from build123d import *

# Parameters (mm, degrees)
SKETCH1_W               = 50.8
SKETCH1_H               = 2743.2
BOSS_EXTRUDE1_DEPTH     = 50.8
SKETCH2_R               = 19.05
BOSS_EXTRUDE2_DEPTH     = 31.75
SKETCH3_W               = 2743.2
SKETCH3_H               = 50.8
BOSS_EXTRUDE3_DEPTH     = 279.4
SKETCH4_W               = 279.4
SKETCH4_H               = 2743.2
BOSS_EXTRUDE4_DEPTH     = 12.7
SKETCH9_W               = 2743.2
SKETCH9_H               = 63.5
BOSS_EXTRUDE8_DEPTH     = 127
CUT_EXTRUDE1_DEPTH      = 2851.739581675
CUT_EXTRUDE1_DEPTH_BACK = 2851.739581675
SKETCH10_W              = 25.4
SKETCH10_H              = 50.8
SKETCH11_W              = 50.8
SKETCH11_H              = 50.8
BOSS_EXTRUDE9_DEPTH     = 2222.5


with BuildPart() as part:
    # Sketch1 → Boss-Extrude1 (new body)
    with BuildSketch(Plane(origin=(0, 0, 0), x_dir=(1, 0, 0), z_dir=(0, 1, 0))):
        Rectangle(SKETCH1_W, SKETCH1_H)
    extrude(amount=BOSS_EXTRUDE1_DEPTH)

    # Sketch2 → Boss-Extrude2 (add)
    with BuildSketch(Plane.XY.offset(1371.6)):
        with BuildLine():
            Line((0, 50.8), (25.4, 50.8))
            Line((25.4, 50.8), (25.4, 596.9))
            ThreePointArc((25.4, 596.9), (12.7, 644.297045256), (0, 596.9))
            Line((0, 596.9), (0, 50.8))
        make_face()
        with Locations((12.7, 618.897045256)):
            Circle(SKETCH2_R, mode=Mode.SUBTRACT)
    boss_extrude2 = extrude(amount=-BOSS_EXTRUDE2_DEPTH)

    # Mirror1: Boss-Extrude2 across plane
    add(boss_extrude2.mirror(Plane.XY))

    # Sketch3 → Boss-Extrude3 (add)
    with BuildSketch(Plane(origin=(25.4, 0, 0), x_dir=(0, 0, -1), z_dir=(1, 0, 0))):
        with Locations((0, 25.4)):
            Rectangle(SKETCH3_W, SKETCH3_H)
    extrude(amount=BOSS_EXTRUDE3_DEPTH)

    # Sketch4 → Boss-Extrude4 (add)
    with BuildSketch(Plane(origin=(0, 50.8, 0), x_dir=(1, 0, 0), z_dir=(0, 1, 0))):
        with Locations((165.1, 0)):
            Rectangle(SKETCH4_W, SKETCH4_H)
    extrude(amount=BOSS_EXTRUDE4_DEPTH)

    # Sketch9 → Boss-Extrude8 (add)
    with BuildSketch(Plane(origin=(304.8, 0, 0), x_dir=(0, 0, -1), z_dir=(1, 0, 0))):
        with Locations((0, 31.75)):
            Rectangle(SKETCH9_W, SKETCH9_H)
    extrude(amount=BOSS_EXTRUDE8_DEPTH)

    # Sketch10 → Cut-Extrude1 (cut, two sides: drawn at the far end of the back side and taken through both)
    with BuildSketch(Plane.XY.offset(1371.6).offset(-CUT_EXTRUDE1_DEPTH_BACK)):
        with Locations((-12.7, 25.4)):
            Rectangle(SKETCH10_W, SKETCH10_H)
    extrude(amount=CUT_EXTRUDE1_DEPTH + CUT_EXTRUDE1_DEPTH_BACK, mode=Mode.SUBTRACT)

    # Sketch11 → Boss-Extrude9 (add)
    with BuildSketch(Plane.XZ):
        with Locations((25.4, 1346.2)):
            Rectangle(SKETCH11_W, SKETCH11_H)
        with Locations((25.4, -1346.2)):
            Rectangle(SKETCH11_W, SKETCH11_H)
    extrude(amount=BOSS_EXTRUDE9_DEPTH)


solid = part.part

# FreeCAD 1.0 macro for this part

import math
import FreeCAD as App
import Part
import Sketcher
from FreeCAD import Vector
Q = App.Units.Quantity

doc = App.newDocument("Part")
body = doc.addObject("PartDesign::Body", "Body")

# Sketch on XZ plane
sketch1 = body.newObject("Sketcher::SketchObject", "Sketch")
sketch1.AttachmentSupport = (doc.getObject("XZ_Plane"), [""])
sketch1.MapMode = "FlatFace"
sketch1.addGeometry([
    Part.LineSegment(Vector(-25, -1372, 0), Vector(-25, 1372, 0)),
    Part.LineSegment(Vector(-25, 1372, 0), Vector(25, 1372, 0)),
    Part.LineSegment(Vector(25, 1372, 0), Vector(25, -1372, 0)),
    Part.LineSegment(Vector(25, -1372, 0), Vector(-25, -1372, 0)),
], False)
sketch1.addConstraint([
    Sketcher.Constraint("Coincident", 0, 2, 1, 1),
    Sketcher.Constraint("Coincident", 1, 2, 2, 1),
    Sketcher.Constraint("Coincident", 2, 2, 3, 1),
    Sketcher.Constraint("Coincident", 3, 2, 0, 1),
    Sketcher.Constraint("Vertical", 0),
    Sketcher.Constraint("Horizontal", 1),
    Sketcher.Constraint("Vertical", 2),
    Sketcher.Constraint("Horizontal", 3),
    Sketcher.Constraint("Symmetric", 0, 2, 2, 2, -1, 1),
    Sketcher.Constraint("DistanceX", 1, 1, 1, 2, Q("2 in")),
    Sketcher.Constraint("DistanceY", 0, 1, 0, 2, Q("108 in")),
])
pad1 = body.newObject("PartDesign::Pad", "Pad")
pad1.Profile = sketch1
pad1.Length = Q("2 in")
pad1.Reversed = True

# Sketch on XY plane
sketch2 = body.newObject("Sketcher::SketchObject", "Sketch001")
sketch2.AttachmentSupport = (doc.getObject("XY_Plane"), [""])
sketch2.MapMode = "FlatFace"
sketch2.AttachmentOffset = App.Placement(Vector(0, 0, 54 * 25.4), App.Rotation())
sketch2.addGeometry([
    Part.LineSegment(Vector(0, 51, 0), Vector(25, 51, 0)),  # 0
    Part.LineSegment(Vector(25, 51, 0), Vector(25, 597, 0)),  # 1
    Part.ArcOfCircle(Part.Circle(Vector(13, 619, 0), Vector(0, 0, 1), 25), math.radians(-60), math.radians(240)),  # 2
    Part.LineSegment(Vector(0, 597, 0), Vector(0, 51, 0)),  # 3
    Part.Circle(Vector(13, 619, 0), Vector(0, 0, 1), 19),  # 4
], False)
sketch2.addConstraint([
    Sketcher.Constraint("Coincident", 0, 2, 1, 1),
    Sketcher.Constraint("Coincident", 1, 2, 2, 1),
    Sketcher.Constraint("Coincident", 2, 2, 3, 1),
    Sketcher.Constraint("Coincident", 3, 2, 0, 1),
    Sketcher.Constraint("Horizontal", 0),
    Sketcher.Constraint("Vertical", 1),
    Sketcher.Constraint("Vertical", 3),
    Sketcher.Constraint("Coincident", 4, 3, 2, 3),
    Sketcher.Constraint("PointOnObject", 2, 2, -2),
    Sketcher.Constraint("Horizontal", 1, 2, 2, 2),
    Sketcher.Constraint("Radius", 2, Q("1 in")),
    Sketcher.Constraint("Diameter", 4, Q("1.5 in")),
    Sketcher.Constraint("DistanceX", 0, 1, 0, 2, Q("1 in")),
    Sketcher.Constraint("DistanceY", 1, 1, 1, 2, Q("21.5 in")),
    Sketcher.Constraint("DistanceY", -1, 1, 0, 2, Q("2 in")),
])
pad2 = body.newObject("PartDesign::Pad", "Pad001")
pad2.Profile = sketch2
pad2.Length = Q("1.25 in")
pad2.Reversed = True
doc.recompute()

mirrored = body.newObject("PartDesign::Mirrored", "Mirrored")
mirrored.Originals = [pad2]
mirrored.MirrorPlane = (doc.getObject("XY_Plane"), [""])
body.Tip = mirrored

# Sketch on YZ plane
sketch3 = body.newObject("Sketcher::SketchObject", "Sketch002")
sketch3.AttachmentSupport = (doc.getObject("YZ_Plane"), [""])
sketch3.MapMode = "FlatFace"
sketch3.AttachmentOffset = App.Placement(Vector(0, 0, 1 * 25.4), App.Rotation())
sketch3.addGeometry([
    Part.LineSegment(Vector(51, 1372, 0), Vector(0, 1372, 0)),
    Part.LineSegment(Vector(0, 1372, 0), Vector(0, -1372, 0)),
    Part.LineSegment(Vector(0, -1372, 0), Vector(51, -1372, 0)),
    Part.LineSegment(Vector(51, -1372, 0), Vector(51, 1372, 0)),
], False)
sketch3.addConstraint([
    Sketcher.Constraint("Coincident", 0, 2, 1, 1),
    Sketcher.Constraint("Coincident", 1, 2, 2, 1),
    Sketcher.Constraint("Coincident", 2, 2, 3, 1),
    Sketcher.Constraint("Coincident", 3, 2, 0, 1),
    Sketcher.Constraint("Horizontal", 0),
    Sketcher.Constraint("Vertical", 1),
    Sketcher.Constraint("Horizontal", 2),
    Sketcher.Constraint("Vertical", 3),
    Sketcher.Constraint("Symmetric", 0, 2, 1, 2, -1, 1),
    Sketcher.Constraint("DistanceX", 0, 2, 0, 1, Q("2 in")),
    Sketcher.Constraint("DistanceY", 1, 2, 1, 1, Q("108 in")),
])
pad3 = body.newObject("PartDesign::Pad", "Pad002")
pad3.Profile = sketch3
pad3.Length = Q("11 in")

# Sketch on XZ plane
sketch4 = body.newObject("Sketcher::SketchObject", "Sketch003")
sketch4.AttachmentSupport = (doc.getObject("XZ_Plane"), [""])
sketch4.MapMode = "FlatFace"
sketch4.AttachmentOffset = App.Placement(Vector(0, 0, -2 * 25.4), App.Rotation())
sketch4.addGeometry([
    Part.LineSegment(Vector(25, -1372, 0), Vector(25, 1372, 0)),
    Part.LineSegment(Vector(25, 1372, 0), Vector(305, 1372, 0)),
    Part.LineSegment(Vector(305, 1372, 0), Vector(305, -1372, 0)),
    Part.LineSegment(Vector(305, -1372, 0), Vector(25, -1372, 0)),
], False)
sketch4.addConstraint([
    Sketcher.Constraint("Coincident", 0, 2, 1, 1),
    Sketcher.Constraint("Coincident", 1, 2, 2, 1),
    Sketcher.Constraint("Coincident", 2, 2, 3, 1),
    Sketcher.Constraint("Coincident", 3, 2, 0, 1),
    Sketcher.Constraint("Vertical", 0),
    Sketcher.Constraint("Horizontal", 1),
    Sketcher.Constraint("Vertical", 2),
    Sketcher.Constraint("Horizontal", 3),
    Sketcher.Constraint("DistanceX", 1, 1, 1, 2, Q("11 in")),
    Sketcher.Constraint("DistanceY", 0, 1, 0, 2, Q("108 in")),
    Sketcher.Constraint("DistanceX", -1, 1, 0, 2, Q("1 in")),
    Sketcher.Constraint("DistanceY", -1, 1, 0, 2, Q("54 in")),
])
pad4 = body.newObject("PartDesign::Pad", "Pad003")
pad4.Profile = sketch4
pad4.Length = Q("0.5 in")
pad4.Reversed = True

# Sketch on YZ plane
sketch5 = body.newObject("Sketcher::SketchObject", "Sketch004")
sketch5.AttachmentSupport = (doc.getObject("YZ_Plane"), [""])
sketch5.MapMode = "FlatFace"
sketch5.AttachmentOffset = App.Placement(Vector(0, 0, 12 * 25.4), App.Rotation())
sketch5.addGeometry([
    Part.LineSegment(Vector(64, 1372, 0), Vector(0, 1372, 0)),
    Part.LineSegment(Vector(0, 1372, 0), Vector(0, -1372, 0)),
    Part.LineSegment(Vector(0, -1372, 0), Vector(64, -1372, 0)),
    Part.LineSegment(Vector(64, -1372, 0), Vector(64, 1372, 0)),
], False)
sketch5.addConstraint([
    Sketcher.Constraint("Coincident", 0, 2, 1, 1),
    Sketcher.Constraint("Coincident", 1, 2, 2, 1),
    Sketcher.Constraint("Coincident", 2, 2, 3, 1),
    Sketcher.Constraint("Coincident", 3, 2, 0, 1),
    Sketcher.Constraint("Horizontal", 0),
    Sketcher.Constraint("Vertical", 1),
    Sketcher.Constraint("Horizontal", 2),
    Sketcher.Constraint("Vertical", 3),
    Sketcher.Constraint("Symmetric", 0, 2, 1, 2, -1, 1),
    Sketcher.Constraint("DistanceY", 1, 2, 1, 1, Q("108 in")),
    Sketcher.Constraint("DistanceX", 0, 2, 0, 1, Q("2.5 in")),
])
pad5 = body.newObject("PartDesign::Pad", "Pad004")
pad5.Profile = sketch5
pad5.Length = Q("5 in")

# Sketch on XY plane
sketch6 = body.newObject("Sketcher::SketchObject", "Sketch005")
sketch6.AttachmentSupport = (doc.getObject("XY_Plane"), [""])
sketch6.MapMode = "FlatFace"
sketch6.AttachmentOffset = App.Placement(Vector(0, 0, 54 * 25.4), App.Rotation())
sketch6.addGeometry([
    Part.LineSegment(Vector(-25, 51, 0), Vector(-25, 0, 0)),
    Part.LineSegment(Vector(-25, 0, 0), Vector(0, 0, 0)),
    Part.LineSegment(Vector(0, 0, 0), Vector(0, 51, 0)),
    Part.LineSegment(Vector(0, 51, 0), Vector(-25, 51, 0)),
], False)
sketch6.addConstraint([
    Sketcher.Constraint("Coincident", 0, 2, 1, 1),
    Sketcher.Constraint("Coincident", 1, 2, 2, 1),
    Sketcher.Constraint("Coincident", 2, 2, 3, 1),
    Sketcher.Constraint("Coincident", 3, 2, 0, 1),
    Sketcher.Constraint("Vertical", 0),
    Sketcher.Constraint("Horizontal", 1),
    Sketcher.Constraint("Vertical", 2),
    Sketcher.Constraint("Horizontal", 3),
    Sketcher.Constraint("Coincident", 1, 2, -1, 1),
    Sketcher.Constraint("DistanceX", 1, 1, 1, 2, Q("1 in")),
    Sketcher.Constraint("DistanceY", 0, 2, 0, 1, Q("2 in")),
])
pocket1 = body.newObject("PartDesign::Pocket", "Pocket")
pocket1.Profile = sketch6
pocket1.Type = "ThroughAll"
pocket1.Midplane = True

# Sketch on XZ plane
sketch7 = body.newObject("Sketcher::SketchObject", "Sketch006")
sketch7.AttachmentSupport = (doc.getObject("XZ_Plane"), [""])
sketch7.MapMode = "FlatFace"
sketch7.addGeometry([
    Part.LineSegment(Vector(0, 1372, 0), Vector(0, 1321, 0)),  # 0
    Part.LineSegment(Vector(0, 1321, 0), Vector(51, 1321, 0)),  # 1
    Part.LineSegment(Vector(51, 1321, 0), Vector(51, 1372, 0)),  # 2
    Part.LineSegment(Vector(51, 1372, 0), Vector(0, 1372, 0)),  # 3
    Part.LineSegment(Vector(0, -1321, 0), Vector(0, -1372, 0)),  # 4
    Part.LineSegment(Vector(0, -1372, 0), Vector(51, -1372, 0)),  # 5
    Part.LineSegment(Vector(51, -1372, 0), Vector(51, -1321, 0)),  # 6
    Part.LineSegment(Vector(51, -1321, 0), Vector(0, -1321, 0)),  # 7
], False)
sketch7.addConstraint([
    Sketcher.Constraint("Coincident", 0, 2, 1, 1),
    Sketcher.Constraint("Coincident", 1, 2, 2, 1),
    Sketcher.Constraint("Coincident", 2, 2, 3, 1),
    Sketcher.Constraint("Coincident", 3, 2, 0, 1),
    Sketcher.Constraint("Coincident", 4, 2, 5, 1),
    Sketcher.Constraint("Coincident", 5, 2, 6, 1),
    Sketcher.Constraint("Coincident", 6, 2, 7, 1),
    Sketcher.Constraint("Coincident", 7, 2, 4, 1),
    Sketcher.Constraint("Vertical", 0),
    Sketcher.Constraint("Horizontal", 1),
    Sketcher.Constraint("Vertical", 2),
    Sketcher.Constraint("Horizontal", 3),
    Sketcher.Constraint("Vertical", 4),
    Sketcher.Constraint("Horizontal", 5),
    Sketcher.Constraint("Vertical", 6),
    Sketcher.Constraint("Horizontal", 7),
    Sketcher.Constraint("Symmetric", 3, 2, 4, 2, -1, 1),
    Sketcher.Constraint("Symmetric", 1, 2, 6, 2, -1),
    Sketcher.Constraint("PointOnObject", 0, 2, -2),
    Sketcher.Constraint("Equal", 7, 0),
    Sketcher.Constraint("DistanceX", 1, 1, 1, 2, Q("2 in")),
    Sketcher.Constraint("DistanceY", -1, 1, 0, 2, Q("52 in")),
])
pad6 = body.newObject("PartDesign::Pad", "Pad005")
pad6.Profile = sketch7
pad6.Length = Q("87.5 in")

doc.recompute()
